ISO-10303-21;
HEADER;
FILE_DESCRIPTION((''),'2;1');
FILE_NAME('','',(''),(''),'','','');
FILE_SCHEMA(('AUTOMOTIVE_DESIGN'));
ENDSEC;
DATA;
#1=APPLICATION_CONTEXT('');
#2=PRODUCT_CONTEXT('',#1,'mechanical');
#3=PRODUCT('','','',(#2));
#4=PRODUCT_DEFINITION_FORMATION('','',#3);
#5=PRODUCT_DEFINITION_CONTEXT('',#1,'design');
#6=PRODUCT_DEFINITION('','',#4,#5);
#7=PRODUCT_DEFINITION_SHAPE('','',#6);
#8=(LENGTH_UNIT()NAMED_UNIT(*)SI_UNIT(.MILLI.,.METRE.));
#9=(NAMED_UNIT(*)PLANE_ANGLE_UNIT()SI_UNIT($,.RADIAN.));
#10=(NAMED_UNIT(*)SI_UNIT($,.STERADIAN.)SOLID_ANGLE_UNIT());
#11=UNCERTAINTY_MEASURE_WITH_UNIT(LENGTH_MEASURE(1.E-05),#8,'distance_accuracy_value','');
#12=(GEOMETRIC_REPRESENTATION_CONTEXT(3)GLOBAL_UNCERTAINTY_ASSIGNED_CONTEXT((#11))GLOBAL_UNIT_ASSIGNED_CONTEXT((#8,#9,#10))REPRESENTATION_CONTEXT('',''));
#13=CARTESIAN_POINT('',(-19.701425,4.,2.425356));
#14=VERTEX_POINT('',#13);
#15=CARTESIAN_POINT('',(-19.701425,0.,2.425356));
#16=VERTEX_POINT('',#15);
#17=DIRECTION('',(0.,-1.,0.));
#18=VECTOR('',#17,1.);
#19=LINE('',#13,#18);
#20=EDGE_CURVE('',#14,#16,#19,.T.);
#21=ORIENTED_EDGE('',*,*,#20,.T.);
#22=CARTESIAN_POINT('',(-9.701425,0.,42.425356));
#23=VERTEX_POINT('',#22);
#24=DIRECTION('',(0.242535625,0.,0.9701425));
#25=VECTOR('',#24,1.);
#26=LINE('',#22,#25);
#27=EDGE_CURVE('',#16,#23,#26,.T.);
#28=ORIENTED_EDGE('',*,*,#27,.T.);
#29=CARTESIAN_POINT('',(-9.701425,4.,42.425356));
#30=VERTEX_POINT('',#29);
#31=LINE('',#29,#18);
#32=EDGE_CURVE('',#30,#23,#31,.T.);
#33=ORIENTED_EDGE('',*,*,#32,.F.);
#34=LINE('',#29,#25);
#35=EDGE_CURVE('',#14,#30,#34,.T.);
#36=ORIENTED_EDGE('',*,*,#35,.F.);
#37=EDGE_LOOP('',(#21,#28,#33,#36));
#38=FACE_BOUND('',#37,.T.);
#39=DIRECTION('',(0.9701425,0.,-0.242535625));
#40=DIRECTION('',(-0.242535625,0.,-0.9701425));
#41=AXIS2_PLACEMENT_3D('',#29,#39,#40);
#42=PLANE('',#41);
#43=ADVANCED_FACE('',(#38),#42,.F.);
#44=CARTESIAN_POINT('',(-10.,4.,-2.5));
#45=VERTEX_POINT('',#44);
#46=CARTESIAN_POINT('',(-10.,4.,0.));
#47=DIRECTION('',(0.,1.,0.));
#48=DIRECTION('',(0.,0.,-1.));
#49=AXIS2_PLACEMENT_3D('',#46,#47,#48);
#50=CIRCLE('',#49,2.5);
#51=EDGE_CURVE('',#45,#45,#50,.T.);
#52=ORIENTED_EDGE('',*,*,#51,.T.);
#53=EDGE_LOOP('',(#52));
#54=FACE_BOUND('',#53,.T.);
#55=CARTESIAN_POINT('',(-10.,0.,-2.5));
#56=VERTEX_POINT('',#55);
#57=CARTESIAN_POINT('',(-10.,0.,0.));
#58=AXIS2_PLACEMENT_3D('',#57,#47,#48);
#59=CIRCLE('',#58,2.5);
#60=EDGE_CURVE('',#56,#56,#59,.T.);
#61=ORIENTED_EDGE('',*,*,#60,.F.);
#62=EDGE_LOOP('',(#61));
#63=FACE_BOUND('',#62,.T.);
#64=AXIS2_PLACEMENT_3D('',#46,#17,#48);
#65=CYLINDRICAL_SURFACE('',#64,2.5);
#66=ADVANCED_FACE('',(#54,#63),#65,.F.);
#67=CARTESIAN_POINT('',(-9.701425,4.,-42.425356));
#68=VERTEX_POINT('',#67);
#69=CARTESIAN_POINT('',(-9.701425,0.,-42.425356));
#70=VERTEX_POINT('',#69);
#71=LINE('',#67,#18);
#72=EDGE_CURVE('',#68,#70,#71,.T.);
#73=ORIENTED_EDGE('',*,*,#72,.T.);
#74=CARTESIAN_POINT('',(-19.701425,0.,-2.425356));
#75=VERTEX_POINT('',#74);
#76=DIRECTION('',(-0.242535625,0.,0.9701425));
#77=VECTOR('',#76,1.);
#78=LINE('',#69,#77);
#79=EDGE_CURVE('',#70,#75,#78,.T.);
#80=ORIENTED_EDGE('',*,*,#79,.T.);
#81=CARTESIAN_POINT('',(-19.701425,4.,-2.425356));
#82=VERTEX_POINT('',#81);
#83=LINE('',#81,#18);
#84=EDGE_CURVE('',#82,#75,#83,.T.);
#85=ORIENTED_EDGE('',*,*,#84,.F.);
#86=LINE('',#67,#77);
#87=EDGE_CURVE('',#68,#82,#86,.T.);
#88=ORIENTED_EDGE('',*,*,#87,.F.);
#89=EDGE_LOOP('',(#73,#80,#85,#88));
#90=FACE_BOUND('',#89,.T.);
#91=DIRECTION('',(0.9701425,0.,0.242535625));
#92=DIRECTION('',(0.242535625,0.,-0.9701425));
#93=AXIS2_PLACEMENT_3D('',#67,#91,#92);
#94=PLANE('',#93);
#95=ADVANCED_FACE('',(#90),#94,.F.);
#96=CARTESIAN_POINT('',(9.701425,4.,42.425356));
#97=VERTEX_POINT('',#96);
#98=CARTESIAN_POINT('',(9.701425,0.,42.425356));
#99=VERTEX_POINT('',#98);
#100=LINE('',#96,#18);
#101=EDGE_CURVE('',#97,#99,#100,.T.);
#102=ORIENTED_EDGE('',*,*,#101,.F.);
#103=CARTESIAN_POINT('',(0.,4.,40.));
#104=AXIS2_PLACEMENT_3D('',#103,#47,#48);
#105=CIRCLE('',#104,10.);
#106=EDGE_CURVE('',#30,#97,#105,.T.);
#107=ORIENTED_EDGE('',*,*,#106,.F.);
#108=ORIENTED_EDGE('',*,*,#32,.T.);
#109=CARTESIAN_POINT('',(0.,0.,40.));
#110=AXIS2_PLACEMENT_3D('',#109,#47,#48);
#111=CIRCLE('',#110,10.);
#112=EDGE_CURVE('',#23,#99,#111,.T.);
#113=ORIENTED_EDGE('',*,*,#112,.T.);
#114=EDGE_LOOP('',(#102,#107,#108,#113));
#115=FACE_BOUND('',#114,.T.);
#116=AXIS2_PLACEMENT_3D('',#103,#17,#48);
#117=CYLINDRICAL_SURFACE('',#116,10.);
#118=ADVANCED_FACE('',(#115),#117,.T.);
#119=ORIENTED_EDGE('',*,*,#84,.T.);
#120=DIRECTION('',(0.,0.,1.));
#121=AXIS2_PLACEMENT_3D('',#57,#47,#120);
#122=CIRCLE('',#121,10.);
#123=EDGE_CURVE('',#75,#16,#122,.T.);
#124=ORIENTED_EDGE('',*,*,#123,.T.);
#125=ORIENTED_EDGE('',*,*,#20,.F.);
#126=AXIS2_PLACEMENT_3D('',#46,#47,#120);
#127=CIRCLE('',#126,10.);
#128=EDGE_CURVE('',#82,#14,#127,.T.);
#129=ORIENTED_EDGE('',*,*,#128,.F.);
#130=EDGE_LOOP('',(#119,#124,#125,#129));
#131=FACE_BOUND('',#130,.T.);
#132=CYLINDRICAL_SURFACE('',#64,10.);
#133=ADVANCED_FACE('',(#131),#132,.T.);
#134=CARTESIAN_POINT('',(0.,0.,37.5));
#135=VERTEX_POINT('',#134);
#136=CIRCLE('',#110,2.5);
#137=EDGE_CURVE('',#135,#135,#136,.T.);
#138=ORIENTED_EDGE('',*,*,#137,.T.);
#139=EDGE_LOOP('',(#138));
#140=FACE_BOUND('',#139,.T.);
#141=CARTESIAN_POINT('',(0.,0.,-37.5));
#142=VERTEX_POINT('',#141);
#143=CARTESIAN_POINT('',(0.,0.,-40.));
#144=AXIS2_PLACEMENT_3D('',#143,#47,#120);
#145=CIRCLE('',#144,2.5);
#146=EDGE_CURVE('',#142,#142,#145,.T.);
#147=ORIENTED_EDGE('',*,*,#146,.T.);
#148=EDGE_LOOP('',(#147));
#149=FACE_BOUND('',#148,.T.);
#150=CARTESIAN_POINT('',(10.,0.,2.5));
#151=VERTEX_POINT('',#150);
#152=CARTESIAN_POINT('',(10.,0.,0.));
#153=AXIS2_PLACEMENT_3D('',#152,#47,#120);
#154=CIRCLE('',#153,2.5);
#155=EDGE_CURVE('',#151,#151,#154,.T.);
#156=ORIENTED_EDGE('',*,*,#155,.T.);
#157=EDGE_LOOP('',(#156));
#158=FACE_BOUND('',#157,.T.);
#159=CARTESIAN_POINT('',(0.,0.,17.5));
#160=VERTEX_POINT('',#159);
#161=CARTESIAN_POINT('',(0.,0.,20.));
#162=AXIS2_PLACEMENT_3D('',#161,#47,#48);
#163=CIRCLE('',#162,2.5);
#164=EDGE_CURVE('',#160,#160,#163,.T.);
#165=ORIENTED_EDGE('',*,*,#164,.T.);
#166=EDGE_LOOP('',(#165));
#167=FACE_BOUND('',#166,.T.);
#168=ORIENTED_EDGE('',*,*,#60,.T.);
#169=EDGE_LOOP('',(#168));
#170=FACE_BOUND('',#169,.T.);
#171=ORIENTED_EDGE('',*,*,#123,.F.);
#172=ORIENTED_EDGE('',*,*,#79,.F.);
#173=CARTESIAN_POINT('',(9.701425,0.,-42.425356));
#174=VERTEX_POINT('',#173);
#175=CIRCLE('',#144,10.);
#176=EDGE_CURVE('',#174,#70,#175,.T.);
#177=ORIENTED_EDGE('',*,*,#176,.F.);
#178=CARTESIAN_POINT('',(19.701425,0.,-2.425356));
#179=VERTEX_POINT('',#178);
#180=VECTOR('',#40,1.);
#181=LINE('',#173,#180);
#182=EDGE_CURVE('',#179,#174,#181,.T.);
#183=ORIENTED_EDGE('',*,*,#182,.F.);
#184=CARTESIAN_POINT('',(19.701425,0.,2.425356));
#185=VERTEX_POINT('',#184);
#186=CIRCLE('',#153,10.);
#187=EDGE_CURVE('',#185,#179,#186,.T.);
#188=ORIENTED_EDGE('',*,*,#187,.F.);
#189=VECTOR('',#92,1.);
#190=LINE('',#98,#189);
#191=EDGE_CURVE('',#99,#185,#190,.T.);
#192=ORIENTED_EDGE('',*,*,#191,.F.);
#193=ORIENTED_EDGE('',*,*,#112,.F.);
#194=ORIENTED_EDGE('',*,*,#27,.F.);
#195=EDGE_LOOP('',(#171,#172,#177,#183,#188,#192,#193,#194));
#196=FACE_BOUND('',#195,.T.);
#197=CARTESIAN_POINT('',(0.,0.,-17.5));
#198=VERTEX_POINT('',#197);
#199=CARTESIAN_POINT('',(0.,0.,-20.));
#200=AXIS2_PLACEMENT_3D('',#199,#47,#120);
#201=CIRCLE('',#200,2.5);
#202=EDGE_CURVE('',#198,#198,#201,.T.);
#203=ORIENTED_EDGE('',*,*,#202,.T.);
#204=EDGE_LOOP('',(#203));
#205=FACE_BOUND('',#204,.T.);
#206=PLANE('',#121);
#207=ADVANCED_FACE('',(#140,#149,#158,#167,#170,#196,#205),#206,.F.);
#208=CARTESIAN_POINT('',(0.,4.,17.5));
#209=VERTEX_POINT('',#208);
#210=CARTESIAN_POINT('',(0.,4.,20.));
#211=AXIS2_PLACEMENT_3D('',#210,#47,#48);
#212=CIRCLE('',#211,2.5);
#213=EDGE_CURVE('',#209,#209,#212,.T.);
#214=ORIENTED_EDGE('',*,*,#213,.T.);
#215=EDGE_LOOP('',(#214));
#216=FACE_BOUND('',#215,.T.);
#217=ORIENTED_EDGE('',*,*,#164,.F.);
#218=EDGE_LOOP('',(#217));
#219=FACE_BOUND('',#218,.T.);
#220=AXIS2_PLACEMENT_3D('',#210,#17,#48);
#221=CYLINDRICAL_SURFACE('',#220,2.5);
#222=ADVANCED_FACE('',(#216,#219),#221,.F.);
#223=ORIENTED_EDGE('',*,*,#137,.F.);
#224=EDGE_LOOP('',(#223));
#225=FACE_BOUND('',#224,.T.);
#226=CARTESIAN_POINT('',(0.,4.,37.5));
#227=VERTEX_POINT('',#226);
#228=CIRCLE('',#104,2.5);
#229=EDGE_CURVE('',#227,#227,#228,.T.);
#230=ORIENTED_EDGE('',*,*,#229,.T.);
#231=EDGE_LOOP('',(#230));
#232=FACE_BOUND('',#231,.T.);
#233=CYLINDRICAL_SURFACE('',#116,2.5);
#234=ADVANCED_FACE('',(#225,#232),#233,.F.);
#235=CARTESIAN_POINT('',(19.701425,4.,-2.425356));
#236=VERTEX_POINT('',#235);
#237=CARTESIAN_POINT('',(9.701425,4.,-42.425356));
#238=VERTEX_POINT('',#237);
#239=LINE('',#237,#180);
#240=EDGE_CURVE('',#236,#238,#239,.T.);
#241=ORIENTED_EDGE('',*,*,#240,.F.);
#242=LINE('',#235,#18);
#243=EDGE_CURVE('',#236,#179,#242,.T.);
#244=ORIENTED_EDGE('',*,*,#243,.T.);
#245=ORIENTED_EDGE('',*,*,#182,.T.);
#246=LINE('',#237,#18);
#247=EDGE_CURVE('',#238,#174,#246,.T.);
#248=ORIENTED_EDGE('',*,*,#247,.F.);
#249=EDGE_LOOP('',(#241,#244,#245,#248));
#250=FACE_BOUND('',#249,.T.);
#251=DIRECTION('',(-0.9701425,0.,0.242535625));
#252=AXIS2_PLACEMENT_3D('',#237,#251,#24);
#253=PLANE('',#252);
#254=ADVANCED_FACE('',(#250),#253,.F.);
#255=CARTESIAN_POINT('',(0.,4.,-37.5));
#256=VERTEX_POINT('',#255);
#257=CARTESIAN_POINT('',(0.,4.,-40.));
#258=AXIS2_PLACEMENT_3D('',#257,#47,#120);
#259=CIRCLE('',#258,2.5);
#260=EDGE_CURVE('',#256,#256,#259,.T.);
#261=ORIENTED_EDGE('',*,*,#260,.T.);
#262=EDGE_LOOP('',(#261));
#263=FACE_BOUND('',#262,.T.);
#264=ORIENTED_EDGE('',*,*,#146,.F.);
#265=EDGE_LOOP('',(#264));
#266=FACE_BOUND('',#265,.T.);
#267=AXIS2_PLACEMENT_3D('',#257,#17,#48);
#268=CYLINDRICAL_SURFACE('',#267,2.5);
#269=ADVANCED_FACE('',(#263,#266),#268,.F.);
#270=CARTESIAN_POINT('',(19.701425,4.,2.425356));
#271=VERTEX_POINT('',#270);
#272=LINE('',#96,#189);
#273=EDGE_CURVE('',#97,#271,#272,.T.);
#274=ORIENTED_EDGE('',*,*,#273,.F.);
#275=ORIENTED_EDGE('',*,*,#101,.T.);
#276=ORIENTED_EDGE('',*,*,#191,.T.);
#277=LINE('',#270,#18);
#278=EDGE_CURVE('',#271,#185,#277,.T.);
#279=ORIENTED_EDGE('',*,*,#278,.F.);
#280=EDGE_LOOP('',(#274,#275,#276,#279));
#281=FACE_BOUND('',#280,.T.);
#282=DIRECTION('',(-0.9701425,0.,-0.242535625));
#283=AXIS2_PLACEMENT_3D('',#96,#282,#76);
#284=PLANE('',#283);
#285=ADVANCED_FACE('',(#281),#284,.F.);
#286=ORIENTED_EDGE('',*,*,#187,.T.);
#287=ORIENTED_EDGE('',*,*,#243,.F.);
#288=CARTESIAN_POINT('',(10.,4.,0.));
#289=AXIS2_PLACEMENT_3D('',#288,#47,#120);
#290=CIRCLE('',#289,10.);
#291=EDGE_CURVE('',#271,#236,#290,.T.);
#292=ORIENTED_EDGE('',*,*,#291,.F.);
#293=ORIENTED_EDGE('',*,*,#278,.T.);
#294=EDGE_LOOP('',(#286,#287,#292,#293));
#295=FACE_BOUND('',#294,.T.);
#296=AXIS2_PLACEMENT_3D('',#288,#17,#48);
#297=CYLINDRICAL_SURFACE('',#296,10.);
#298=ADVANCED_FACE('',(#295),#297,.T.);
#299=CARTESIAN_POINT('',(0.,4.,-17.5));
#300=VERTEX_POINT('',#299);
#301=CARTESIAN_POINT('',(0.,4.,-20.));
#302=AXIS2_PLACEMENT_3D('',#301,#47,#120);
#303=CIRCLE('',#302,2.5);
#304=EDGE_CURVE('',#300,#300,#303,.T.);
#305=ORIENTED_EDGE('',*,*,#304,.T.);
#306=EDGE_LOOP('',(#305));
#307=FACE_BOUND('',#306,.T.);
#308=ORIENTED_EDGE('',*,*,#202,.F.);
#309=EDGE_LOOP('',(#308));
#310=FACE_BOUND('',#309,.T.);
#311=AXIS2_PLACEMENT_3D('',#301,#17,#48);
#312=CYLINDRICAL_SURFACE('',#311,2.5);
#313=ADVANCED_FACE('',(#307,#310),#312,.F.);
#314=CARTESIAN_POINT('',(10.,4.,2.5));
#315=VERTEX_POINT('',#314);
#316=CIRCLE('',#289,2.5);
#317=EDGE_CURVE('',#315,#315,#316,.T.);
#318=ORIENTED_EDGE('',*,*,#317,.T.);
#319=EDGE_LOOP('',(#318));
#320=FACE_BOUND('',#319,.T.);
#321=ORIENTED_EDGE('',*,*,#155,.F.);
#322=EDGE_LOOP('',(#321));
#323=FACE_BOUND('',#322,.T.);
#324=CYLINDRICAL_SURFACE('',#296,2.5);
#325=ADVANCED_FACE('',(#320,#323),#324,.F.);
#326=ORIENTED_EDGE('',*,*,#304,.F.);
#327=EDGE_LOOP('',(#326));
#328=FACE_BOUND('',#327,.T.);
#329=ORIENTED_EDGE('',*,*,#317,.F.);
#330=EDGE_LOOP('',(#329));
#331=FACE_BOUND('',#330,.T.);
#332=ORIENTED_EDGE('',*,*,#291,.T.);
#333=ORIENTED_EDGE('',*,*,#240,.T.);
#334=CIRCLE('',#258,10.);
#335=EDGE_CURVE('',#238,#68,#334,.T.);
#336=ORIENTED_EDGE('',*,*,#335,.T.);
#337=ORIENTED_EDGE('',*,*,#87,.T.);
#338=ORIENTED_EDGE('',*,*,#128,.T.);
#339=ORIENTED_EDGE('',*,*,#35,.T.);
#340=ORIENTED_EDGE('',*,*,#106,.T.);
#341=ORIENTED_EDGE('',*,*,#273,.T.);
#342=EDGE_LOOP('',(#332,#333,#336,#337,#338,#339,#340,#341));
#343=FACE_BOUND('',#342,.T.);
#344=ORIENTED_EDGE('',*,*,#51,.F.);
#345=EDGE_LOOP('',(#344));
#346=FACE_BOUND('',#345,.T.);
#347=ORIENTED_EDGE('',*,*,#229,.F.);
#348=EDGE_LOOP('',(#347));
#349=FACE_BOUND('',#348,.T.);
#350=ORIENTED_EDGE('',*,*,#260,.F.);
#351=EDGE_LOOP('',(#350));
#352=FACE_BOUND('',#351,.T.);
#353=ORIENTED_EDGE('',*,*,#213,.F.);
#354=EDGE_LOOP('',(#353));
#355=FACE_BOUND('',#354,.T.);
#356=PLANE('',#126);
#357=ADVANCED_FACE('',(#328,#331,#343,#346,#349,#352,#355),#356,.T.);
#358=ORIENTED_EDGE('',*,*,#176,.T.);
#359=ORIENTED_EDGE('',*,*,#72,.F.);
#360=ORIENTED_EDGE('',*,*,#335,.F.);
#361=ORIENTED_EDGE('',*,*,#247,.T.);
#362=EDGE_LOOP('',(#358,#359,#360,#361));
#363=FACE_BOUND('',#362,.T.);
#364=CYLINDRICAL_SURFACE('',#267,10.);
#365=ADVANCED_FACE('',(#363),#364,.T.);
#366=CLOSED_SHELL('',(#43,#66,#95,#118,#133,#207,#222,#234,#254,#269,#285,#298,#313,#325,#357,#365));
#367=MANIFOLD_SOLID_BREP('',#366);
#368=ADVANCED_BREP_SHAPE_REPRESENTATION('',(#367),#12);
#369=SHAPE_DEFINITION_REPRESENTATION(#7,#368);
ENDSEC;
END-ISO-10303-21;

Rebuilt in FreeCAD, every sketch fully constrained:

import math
import FreeCAD as App
import Part
import Sketcher
from FreeCAD import Vector

doc = App.newDocument("Part")
body = doc.addObject("PartDesign::Body", "Body")

# Sketch on XZ plane
sketch1 = doc.addObject("Sketcher::SketchObject", "Sketch")
body.addObject(sketch1)
sketch1.AttachmentSupport = (doc.XZ_Plane, [""])
sketch1.MapMode = "FlatFace"
sketch1.addGeometry([
    Part.LineSegment(Vector(-9.7, -42.4, 0), Vector(-19.7, -2.4, 0)),  # 0
    Part.ArcOfCircle(Part.Circle(Vector(-10, 0, 0), Vector(0, 0, 1), 10), math.radians(166), math.radians(194)),  # 1
    Part.LineSegment(Vector(-19.7, 2.4, 0), Vector(-9.7, 42.4, 0)),  # 2
    Part.ArcOfCircle(Part.Circle(Vector(0, 40, 0), Vector(0, 0, 1), 10), math.radians(14), math.radians(166)),  # 3
    Part.LineSegment(Vector(9.7, 42.4, 0), Vector(19.7, 2.4, 0)),  # 4
    Part.ArcOfCircle(Part.Circle(Vector(10, 0, 0), Vector(0, 0, 1), 10), math.radians(-14), math.radians(14)),  # 5
    Part.LineSegment(Vector(19.7, -2.4, 0), Vector(9.7, -42.4, 0)),  # 6
    Part.ArcOfCircle(Part.Circle(Vector(0, -40, 0), Vector(0, 0, 1), 10), math.radians(-166), math.radians(-14)),  # 7
    Part.Circle(Vector(0, 40, 0), Vector(0, 0, 1), 2.5),  # 8
    Part.Circle(Vector(0, 20, 0), Vector(0, 0, 1), 2.5),  # 9
    Part.Circle(Vector(-10, 0, 0), Vector(0, 0, 1), 2.5),  # 10
    Part.Circle(Vector(0, -20, 0), Vector(0, 0, 1), 2.5),  # 11
    Part.Circle(Vector(10, 0, 0), Vector(0, 0, 1), 2.5),  # 12
    Part.Circle(Vector(0, -40, 0), Vector(0, 0, 1), 2.5),  # 13
], False)
sketch1.addConstraint([
    Sketcher.Constraint("Tangent", 0, 2, 1, 2),
    Sketcher.Constraint("Tangent", 1, 1, 2, 1),
    Sketcher.Constraint("Tangent", 2, 2, 3, 2),
    Sketcher.Constraint("Tangent", 3, 1, 4, 1),
    Sketcher.Constraint("Tangent", 4, 2, 5, 2),
    Sketcher.Constraint("Tangent", 5, 1, 6, 1),
    Sketcher.Constraint("Tangent", 6, 2, 7, 2),
    Sketcher.Constraint("Tangent", 7, 1, 0, 1),
    Sketcher.Constraint("Coincident", 8, 3, 3, 3),
    Sketcher.Constraint("Coincident", 10, 3, 1, 3),
    Sketcher.Constraint("Coincident", 12, 3, 5, 3),
    Sketcher.Constraint("Coincident", 13, 3, 7, 3),
    Sketcher.Constraint("Equal", 1, 3),
    Sketcher.Constraint("Equal", 3, 5),
    Sketcher.Constraint("Equal", 5, 7),
    Sketcher.Constraint("Equal", 8, 9),
    Sketcher.Constraint("Equal", 9, 10),
    Sketcher.Constraint("Equal", 10, 11),
    Sketcher.Constraint("Equal", 11, 12),
    Sketcher.Constraint("Equal", 12, 13),
    Sketcher.Constraint("Symmetric", 1, 3, 5, 3, -1, 1),
    Sketcher.Constraint("Symmetric", 3, 3, 7, 3, -1, 1),
    Sketcher.Constraint("Symmetric", 9, 3, 11, 3, -1, 1),
    Sketcher.Constraint("Symmetric", 2, 2, 3, 1, -2),
    Sketcher.Constraint("PointOnObject", 9, 3, -2),
    Sketcher.Constraint("Diameter", 8, 5.0),
    Sketcher.Constraint("Radius", 1, 10.0),
    Sketcher.Constraint("DistanceX", 1, 3, -1, 1, 10.0),
    Sketcher.Constraint("DistanceY", -1, 1, 3, 3, 40.0),
    Sketcher.Constraint("DistanceY", -1, 1, 9, 3, 20.0),
])
pad1 = doc.addObject("PartDesign::Pad", "Pad")
body.addObject(pad1)
pad1.Profile = sketch1
pad1.Length = 4
pad1.Reversed = True

doc.recompute()
